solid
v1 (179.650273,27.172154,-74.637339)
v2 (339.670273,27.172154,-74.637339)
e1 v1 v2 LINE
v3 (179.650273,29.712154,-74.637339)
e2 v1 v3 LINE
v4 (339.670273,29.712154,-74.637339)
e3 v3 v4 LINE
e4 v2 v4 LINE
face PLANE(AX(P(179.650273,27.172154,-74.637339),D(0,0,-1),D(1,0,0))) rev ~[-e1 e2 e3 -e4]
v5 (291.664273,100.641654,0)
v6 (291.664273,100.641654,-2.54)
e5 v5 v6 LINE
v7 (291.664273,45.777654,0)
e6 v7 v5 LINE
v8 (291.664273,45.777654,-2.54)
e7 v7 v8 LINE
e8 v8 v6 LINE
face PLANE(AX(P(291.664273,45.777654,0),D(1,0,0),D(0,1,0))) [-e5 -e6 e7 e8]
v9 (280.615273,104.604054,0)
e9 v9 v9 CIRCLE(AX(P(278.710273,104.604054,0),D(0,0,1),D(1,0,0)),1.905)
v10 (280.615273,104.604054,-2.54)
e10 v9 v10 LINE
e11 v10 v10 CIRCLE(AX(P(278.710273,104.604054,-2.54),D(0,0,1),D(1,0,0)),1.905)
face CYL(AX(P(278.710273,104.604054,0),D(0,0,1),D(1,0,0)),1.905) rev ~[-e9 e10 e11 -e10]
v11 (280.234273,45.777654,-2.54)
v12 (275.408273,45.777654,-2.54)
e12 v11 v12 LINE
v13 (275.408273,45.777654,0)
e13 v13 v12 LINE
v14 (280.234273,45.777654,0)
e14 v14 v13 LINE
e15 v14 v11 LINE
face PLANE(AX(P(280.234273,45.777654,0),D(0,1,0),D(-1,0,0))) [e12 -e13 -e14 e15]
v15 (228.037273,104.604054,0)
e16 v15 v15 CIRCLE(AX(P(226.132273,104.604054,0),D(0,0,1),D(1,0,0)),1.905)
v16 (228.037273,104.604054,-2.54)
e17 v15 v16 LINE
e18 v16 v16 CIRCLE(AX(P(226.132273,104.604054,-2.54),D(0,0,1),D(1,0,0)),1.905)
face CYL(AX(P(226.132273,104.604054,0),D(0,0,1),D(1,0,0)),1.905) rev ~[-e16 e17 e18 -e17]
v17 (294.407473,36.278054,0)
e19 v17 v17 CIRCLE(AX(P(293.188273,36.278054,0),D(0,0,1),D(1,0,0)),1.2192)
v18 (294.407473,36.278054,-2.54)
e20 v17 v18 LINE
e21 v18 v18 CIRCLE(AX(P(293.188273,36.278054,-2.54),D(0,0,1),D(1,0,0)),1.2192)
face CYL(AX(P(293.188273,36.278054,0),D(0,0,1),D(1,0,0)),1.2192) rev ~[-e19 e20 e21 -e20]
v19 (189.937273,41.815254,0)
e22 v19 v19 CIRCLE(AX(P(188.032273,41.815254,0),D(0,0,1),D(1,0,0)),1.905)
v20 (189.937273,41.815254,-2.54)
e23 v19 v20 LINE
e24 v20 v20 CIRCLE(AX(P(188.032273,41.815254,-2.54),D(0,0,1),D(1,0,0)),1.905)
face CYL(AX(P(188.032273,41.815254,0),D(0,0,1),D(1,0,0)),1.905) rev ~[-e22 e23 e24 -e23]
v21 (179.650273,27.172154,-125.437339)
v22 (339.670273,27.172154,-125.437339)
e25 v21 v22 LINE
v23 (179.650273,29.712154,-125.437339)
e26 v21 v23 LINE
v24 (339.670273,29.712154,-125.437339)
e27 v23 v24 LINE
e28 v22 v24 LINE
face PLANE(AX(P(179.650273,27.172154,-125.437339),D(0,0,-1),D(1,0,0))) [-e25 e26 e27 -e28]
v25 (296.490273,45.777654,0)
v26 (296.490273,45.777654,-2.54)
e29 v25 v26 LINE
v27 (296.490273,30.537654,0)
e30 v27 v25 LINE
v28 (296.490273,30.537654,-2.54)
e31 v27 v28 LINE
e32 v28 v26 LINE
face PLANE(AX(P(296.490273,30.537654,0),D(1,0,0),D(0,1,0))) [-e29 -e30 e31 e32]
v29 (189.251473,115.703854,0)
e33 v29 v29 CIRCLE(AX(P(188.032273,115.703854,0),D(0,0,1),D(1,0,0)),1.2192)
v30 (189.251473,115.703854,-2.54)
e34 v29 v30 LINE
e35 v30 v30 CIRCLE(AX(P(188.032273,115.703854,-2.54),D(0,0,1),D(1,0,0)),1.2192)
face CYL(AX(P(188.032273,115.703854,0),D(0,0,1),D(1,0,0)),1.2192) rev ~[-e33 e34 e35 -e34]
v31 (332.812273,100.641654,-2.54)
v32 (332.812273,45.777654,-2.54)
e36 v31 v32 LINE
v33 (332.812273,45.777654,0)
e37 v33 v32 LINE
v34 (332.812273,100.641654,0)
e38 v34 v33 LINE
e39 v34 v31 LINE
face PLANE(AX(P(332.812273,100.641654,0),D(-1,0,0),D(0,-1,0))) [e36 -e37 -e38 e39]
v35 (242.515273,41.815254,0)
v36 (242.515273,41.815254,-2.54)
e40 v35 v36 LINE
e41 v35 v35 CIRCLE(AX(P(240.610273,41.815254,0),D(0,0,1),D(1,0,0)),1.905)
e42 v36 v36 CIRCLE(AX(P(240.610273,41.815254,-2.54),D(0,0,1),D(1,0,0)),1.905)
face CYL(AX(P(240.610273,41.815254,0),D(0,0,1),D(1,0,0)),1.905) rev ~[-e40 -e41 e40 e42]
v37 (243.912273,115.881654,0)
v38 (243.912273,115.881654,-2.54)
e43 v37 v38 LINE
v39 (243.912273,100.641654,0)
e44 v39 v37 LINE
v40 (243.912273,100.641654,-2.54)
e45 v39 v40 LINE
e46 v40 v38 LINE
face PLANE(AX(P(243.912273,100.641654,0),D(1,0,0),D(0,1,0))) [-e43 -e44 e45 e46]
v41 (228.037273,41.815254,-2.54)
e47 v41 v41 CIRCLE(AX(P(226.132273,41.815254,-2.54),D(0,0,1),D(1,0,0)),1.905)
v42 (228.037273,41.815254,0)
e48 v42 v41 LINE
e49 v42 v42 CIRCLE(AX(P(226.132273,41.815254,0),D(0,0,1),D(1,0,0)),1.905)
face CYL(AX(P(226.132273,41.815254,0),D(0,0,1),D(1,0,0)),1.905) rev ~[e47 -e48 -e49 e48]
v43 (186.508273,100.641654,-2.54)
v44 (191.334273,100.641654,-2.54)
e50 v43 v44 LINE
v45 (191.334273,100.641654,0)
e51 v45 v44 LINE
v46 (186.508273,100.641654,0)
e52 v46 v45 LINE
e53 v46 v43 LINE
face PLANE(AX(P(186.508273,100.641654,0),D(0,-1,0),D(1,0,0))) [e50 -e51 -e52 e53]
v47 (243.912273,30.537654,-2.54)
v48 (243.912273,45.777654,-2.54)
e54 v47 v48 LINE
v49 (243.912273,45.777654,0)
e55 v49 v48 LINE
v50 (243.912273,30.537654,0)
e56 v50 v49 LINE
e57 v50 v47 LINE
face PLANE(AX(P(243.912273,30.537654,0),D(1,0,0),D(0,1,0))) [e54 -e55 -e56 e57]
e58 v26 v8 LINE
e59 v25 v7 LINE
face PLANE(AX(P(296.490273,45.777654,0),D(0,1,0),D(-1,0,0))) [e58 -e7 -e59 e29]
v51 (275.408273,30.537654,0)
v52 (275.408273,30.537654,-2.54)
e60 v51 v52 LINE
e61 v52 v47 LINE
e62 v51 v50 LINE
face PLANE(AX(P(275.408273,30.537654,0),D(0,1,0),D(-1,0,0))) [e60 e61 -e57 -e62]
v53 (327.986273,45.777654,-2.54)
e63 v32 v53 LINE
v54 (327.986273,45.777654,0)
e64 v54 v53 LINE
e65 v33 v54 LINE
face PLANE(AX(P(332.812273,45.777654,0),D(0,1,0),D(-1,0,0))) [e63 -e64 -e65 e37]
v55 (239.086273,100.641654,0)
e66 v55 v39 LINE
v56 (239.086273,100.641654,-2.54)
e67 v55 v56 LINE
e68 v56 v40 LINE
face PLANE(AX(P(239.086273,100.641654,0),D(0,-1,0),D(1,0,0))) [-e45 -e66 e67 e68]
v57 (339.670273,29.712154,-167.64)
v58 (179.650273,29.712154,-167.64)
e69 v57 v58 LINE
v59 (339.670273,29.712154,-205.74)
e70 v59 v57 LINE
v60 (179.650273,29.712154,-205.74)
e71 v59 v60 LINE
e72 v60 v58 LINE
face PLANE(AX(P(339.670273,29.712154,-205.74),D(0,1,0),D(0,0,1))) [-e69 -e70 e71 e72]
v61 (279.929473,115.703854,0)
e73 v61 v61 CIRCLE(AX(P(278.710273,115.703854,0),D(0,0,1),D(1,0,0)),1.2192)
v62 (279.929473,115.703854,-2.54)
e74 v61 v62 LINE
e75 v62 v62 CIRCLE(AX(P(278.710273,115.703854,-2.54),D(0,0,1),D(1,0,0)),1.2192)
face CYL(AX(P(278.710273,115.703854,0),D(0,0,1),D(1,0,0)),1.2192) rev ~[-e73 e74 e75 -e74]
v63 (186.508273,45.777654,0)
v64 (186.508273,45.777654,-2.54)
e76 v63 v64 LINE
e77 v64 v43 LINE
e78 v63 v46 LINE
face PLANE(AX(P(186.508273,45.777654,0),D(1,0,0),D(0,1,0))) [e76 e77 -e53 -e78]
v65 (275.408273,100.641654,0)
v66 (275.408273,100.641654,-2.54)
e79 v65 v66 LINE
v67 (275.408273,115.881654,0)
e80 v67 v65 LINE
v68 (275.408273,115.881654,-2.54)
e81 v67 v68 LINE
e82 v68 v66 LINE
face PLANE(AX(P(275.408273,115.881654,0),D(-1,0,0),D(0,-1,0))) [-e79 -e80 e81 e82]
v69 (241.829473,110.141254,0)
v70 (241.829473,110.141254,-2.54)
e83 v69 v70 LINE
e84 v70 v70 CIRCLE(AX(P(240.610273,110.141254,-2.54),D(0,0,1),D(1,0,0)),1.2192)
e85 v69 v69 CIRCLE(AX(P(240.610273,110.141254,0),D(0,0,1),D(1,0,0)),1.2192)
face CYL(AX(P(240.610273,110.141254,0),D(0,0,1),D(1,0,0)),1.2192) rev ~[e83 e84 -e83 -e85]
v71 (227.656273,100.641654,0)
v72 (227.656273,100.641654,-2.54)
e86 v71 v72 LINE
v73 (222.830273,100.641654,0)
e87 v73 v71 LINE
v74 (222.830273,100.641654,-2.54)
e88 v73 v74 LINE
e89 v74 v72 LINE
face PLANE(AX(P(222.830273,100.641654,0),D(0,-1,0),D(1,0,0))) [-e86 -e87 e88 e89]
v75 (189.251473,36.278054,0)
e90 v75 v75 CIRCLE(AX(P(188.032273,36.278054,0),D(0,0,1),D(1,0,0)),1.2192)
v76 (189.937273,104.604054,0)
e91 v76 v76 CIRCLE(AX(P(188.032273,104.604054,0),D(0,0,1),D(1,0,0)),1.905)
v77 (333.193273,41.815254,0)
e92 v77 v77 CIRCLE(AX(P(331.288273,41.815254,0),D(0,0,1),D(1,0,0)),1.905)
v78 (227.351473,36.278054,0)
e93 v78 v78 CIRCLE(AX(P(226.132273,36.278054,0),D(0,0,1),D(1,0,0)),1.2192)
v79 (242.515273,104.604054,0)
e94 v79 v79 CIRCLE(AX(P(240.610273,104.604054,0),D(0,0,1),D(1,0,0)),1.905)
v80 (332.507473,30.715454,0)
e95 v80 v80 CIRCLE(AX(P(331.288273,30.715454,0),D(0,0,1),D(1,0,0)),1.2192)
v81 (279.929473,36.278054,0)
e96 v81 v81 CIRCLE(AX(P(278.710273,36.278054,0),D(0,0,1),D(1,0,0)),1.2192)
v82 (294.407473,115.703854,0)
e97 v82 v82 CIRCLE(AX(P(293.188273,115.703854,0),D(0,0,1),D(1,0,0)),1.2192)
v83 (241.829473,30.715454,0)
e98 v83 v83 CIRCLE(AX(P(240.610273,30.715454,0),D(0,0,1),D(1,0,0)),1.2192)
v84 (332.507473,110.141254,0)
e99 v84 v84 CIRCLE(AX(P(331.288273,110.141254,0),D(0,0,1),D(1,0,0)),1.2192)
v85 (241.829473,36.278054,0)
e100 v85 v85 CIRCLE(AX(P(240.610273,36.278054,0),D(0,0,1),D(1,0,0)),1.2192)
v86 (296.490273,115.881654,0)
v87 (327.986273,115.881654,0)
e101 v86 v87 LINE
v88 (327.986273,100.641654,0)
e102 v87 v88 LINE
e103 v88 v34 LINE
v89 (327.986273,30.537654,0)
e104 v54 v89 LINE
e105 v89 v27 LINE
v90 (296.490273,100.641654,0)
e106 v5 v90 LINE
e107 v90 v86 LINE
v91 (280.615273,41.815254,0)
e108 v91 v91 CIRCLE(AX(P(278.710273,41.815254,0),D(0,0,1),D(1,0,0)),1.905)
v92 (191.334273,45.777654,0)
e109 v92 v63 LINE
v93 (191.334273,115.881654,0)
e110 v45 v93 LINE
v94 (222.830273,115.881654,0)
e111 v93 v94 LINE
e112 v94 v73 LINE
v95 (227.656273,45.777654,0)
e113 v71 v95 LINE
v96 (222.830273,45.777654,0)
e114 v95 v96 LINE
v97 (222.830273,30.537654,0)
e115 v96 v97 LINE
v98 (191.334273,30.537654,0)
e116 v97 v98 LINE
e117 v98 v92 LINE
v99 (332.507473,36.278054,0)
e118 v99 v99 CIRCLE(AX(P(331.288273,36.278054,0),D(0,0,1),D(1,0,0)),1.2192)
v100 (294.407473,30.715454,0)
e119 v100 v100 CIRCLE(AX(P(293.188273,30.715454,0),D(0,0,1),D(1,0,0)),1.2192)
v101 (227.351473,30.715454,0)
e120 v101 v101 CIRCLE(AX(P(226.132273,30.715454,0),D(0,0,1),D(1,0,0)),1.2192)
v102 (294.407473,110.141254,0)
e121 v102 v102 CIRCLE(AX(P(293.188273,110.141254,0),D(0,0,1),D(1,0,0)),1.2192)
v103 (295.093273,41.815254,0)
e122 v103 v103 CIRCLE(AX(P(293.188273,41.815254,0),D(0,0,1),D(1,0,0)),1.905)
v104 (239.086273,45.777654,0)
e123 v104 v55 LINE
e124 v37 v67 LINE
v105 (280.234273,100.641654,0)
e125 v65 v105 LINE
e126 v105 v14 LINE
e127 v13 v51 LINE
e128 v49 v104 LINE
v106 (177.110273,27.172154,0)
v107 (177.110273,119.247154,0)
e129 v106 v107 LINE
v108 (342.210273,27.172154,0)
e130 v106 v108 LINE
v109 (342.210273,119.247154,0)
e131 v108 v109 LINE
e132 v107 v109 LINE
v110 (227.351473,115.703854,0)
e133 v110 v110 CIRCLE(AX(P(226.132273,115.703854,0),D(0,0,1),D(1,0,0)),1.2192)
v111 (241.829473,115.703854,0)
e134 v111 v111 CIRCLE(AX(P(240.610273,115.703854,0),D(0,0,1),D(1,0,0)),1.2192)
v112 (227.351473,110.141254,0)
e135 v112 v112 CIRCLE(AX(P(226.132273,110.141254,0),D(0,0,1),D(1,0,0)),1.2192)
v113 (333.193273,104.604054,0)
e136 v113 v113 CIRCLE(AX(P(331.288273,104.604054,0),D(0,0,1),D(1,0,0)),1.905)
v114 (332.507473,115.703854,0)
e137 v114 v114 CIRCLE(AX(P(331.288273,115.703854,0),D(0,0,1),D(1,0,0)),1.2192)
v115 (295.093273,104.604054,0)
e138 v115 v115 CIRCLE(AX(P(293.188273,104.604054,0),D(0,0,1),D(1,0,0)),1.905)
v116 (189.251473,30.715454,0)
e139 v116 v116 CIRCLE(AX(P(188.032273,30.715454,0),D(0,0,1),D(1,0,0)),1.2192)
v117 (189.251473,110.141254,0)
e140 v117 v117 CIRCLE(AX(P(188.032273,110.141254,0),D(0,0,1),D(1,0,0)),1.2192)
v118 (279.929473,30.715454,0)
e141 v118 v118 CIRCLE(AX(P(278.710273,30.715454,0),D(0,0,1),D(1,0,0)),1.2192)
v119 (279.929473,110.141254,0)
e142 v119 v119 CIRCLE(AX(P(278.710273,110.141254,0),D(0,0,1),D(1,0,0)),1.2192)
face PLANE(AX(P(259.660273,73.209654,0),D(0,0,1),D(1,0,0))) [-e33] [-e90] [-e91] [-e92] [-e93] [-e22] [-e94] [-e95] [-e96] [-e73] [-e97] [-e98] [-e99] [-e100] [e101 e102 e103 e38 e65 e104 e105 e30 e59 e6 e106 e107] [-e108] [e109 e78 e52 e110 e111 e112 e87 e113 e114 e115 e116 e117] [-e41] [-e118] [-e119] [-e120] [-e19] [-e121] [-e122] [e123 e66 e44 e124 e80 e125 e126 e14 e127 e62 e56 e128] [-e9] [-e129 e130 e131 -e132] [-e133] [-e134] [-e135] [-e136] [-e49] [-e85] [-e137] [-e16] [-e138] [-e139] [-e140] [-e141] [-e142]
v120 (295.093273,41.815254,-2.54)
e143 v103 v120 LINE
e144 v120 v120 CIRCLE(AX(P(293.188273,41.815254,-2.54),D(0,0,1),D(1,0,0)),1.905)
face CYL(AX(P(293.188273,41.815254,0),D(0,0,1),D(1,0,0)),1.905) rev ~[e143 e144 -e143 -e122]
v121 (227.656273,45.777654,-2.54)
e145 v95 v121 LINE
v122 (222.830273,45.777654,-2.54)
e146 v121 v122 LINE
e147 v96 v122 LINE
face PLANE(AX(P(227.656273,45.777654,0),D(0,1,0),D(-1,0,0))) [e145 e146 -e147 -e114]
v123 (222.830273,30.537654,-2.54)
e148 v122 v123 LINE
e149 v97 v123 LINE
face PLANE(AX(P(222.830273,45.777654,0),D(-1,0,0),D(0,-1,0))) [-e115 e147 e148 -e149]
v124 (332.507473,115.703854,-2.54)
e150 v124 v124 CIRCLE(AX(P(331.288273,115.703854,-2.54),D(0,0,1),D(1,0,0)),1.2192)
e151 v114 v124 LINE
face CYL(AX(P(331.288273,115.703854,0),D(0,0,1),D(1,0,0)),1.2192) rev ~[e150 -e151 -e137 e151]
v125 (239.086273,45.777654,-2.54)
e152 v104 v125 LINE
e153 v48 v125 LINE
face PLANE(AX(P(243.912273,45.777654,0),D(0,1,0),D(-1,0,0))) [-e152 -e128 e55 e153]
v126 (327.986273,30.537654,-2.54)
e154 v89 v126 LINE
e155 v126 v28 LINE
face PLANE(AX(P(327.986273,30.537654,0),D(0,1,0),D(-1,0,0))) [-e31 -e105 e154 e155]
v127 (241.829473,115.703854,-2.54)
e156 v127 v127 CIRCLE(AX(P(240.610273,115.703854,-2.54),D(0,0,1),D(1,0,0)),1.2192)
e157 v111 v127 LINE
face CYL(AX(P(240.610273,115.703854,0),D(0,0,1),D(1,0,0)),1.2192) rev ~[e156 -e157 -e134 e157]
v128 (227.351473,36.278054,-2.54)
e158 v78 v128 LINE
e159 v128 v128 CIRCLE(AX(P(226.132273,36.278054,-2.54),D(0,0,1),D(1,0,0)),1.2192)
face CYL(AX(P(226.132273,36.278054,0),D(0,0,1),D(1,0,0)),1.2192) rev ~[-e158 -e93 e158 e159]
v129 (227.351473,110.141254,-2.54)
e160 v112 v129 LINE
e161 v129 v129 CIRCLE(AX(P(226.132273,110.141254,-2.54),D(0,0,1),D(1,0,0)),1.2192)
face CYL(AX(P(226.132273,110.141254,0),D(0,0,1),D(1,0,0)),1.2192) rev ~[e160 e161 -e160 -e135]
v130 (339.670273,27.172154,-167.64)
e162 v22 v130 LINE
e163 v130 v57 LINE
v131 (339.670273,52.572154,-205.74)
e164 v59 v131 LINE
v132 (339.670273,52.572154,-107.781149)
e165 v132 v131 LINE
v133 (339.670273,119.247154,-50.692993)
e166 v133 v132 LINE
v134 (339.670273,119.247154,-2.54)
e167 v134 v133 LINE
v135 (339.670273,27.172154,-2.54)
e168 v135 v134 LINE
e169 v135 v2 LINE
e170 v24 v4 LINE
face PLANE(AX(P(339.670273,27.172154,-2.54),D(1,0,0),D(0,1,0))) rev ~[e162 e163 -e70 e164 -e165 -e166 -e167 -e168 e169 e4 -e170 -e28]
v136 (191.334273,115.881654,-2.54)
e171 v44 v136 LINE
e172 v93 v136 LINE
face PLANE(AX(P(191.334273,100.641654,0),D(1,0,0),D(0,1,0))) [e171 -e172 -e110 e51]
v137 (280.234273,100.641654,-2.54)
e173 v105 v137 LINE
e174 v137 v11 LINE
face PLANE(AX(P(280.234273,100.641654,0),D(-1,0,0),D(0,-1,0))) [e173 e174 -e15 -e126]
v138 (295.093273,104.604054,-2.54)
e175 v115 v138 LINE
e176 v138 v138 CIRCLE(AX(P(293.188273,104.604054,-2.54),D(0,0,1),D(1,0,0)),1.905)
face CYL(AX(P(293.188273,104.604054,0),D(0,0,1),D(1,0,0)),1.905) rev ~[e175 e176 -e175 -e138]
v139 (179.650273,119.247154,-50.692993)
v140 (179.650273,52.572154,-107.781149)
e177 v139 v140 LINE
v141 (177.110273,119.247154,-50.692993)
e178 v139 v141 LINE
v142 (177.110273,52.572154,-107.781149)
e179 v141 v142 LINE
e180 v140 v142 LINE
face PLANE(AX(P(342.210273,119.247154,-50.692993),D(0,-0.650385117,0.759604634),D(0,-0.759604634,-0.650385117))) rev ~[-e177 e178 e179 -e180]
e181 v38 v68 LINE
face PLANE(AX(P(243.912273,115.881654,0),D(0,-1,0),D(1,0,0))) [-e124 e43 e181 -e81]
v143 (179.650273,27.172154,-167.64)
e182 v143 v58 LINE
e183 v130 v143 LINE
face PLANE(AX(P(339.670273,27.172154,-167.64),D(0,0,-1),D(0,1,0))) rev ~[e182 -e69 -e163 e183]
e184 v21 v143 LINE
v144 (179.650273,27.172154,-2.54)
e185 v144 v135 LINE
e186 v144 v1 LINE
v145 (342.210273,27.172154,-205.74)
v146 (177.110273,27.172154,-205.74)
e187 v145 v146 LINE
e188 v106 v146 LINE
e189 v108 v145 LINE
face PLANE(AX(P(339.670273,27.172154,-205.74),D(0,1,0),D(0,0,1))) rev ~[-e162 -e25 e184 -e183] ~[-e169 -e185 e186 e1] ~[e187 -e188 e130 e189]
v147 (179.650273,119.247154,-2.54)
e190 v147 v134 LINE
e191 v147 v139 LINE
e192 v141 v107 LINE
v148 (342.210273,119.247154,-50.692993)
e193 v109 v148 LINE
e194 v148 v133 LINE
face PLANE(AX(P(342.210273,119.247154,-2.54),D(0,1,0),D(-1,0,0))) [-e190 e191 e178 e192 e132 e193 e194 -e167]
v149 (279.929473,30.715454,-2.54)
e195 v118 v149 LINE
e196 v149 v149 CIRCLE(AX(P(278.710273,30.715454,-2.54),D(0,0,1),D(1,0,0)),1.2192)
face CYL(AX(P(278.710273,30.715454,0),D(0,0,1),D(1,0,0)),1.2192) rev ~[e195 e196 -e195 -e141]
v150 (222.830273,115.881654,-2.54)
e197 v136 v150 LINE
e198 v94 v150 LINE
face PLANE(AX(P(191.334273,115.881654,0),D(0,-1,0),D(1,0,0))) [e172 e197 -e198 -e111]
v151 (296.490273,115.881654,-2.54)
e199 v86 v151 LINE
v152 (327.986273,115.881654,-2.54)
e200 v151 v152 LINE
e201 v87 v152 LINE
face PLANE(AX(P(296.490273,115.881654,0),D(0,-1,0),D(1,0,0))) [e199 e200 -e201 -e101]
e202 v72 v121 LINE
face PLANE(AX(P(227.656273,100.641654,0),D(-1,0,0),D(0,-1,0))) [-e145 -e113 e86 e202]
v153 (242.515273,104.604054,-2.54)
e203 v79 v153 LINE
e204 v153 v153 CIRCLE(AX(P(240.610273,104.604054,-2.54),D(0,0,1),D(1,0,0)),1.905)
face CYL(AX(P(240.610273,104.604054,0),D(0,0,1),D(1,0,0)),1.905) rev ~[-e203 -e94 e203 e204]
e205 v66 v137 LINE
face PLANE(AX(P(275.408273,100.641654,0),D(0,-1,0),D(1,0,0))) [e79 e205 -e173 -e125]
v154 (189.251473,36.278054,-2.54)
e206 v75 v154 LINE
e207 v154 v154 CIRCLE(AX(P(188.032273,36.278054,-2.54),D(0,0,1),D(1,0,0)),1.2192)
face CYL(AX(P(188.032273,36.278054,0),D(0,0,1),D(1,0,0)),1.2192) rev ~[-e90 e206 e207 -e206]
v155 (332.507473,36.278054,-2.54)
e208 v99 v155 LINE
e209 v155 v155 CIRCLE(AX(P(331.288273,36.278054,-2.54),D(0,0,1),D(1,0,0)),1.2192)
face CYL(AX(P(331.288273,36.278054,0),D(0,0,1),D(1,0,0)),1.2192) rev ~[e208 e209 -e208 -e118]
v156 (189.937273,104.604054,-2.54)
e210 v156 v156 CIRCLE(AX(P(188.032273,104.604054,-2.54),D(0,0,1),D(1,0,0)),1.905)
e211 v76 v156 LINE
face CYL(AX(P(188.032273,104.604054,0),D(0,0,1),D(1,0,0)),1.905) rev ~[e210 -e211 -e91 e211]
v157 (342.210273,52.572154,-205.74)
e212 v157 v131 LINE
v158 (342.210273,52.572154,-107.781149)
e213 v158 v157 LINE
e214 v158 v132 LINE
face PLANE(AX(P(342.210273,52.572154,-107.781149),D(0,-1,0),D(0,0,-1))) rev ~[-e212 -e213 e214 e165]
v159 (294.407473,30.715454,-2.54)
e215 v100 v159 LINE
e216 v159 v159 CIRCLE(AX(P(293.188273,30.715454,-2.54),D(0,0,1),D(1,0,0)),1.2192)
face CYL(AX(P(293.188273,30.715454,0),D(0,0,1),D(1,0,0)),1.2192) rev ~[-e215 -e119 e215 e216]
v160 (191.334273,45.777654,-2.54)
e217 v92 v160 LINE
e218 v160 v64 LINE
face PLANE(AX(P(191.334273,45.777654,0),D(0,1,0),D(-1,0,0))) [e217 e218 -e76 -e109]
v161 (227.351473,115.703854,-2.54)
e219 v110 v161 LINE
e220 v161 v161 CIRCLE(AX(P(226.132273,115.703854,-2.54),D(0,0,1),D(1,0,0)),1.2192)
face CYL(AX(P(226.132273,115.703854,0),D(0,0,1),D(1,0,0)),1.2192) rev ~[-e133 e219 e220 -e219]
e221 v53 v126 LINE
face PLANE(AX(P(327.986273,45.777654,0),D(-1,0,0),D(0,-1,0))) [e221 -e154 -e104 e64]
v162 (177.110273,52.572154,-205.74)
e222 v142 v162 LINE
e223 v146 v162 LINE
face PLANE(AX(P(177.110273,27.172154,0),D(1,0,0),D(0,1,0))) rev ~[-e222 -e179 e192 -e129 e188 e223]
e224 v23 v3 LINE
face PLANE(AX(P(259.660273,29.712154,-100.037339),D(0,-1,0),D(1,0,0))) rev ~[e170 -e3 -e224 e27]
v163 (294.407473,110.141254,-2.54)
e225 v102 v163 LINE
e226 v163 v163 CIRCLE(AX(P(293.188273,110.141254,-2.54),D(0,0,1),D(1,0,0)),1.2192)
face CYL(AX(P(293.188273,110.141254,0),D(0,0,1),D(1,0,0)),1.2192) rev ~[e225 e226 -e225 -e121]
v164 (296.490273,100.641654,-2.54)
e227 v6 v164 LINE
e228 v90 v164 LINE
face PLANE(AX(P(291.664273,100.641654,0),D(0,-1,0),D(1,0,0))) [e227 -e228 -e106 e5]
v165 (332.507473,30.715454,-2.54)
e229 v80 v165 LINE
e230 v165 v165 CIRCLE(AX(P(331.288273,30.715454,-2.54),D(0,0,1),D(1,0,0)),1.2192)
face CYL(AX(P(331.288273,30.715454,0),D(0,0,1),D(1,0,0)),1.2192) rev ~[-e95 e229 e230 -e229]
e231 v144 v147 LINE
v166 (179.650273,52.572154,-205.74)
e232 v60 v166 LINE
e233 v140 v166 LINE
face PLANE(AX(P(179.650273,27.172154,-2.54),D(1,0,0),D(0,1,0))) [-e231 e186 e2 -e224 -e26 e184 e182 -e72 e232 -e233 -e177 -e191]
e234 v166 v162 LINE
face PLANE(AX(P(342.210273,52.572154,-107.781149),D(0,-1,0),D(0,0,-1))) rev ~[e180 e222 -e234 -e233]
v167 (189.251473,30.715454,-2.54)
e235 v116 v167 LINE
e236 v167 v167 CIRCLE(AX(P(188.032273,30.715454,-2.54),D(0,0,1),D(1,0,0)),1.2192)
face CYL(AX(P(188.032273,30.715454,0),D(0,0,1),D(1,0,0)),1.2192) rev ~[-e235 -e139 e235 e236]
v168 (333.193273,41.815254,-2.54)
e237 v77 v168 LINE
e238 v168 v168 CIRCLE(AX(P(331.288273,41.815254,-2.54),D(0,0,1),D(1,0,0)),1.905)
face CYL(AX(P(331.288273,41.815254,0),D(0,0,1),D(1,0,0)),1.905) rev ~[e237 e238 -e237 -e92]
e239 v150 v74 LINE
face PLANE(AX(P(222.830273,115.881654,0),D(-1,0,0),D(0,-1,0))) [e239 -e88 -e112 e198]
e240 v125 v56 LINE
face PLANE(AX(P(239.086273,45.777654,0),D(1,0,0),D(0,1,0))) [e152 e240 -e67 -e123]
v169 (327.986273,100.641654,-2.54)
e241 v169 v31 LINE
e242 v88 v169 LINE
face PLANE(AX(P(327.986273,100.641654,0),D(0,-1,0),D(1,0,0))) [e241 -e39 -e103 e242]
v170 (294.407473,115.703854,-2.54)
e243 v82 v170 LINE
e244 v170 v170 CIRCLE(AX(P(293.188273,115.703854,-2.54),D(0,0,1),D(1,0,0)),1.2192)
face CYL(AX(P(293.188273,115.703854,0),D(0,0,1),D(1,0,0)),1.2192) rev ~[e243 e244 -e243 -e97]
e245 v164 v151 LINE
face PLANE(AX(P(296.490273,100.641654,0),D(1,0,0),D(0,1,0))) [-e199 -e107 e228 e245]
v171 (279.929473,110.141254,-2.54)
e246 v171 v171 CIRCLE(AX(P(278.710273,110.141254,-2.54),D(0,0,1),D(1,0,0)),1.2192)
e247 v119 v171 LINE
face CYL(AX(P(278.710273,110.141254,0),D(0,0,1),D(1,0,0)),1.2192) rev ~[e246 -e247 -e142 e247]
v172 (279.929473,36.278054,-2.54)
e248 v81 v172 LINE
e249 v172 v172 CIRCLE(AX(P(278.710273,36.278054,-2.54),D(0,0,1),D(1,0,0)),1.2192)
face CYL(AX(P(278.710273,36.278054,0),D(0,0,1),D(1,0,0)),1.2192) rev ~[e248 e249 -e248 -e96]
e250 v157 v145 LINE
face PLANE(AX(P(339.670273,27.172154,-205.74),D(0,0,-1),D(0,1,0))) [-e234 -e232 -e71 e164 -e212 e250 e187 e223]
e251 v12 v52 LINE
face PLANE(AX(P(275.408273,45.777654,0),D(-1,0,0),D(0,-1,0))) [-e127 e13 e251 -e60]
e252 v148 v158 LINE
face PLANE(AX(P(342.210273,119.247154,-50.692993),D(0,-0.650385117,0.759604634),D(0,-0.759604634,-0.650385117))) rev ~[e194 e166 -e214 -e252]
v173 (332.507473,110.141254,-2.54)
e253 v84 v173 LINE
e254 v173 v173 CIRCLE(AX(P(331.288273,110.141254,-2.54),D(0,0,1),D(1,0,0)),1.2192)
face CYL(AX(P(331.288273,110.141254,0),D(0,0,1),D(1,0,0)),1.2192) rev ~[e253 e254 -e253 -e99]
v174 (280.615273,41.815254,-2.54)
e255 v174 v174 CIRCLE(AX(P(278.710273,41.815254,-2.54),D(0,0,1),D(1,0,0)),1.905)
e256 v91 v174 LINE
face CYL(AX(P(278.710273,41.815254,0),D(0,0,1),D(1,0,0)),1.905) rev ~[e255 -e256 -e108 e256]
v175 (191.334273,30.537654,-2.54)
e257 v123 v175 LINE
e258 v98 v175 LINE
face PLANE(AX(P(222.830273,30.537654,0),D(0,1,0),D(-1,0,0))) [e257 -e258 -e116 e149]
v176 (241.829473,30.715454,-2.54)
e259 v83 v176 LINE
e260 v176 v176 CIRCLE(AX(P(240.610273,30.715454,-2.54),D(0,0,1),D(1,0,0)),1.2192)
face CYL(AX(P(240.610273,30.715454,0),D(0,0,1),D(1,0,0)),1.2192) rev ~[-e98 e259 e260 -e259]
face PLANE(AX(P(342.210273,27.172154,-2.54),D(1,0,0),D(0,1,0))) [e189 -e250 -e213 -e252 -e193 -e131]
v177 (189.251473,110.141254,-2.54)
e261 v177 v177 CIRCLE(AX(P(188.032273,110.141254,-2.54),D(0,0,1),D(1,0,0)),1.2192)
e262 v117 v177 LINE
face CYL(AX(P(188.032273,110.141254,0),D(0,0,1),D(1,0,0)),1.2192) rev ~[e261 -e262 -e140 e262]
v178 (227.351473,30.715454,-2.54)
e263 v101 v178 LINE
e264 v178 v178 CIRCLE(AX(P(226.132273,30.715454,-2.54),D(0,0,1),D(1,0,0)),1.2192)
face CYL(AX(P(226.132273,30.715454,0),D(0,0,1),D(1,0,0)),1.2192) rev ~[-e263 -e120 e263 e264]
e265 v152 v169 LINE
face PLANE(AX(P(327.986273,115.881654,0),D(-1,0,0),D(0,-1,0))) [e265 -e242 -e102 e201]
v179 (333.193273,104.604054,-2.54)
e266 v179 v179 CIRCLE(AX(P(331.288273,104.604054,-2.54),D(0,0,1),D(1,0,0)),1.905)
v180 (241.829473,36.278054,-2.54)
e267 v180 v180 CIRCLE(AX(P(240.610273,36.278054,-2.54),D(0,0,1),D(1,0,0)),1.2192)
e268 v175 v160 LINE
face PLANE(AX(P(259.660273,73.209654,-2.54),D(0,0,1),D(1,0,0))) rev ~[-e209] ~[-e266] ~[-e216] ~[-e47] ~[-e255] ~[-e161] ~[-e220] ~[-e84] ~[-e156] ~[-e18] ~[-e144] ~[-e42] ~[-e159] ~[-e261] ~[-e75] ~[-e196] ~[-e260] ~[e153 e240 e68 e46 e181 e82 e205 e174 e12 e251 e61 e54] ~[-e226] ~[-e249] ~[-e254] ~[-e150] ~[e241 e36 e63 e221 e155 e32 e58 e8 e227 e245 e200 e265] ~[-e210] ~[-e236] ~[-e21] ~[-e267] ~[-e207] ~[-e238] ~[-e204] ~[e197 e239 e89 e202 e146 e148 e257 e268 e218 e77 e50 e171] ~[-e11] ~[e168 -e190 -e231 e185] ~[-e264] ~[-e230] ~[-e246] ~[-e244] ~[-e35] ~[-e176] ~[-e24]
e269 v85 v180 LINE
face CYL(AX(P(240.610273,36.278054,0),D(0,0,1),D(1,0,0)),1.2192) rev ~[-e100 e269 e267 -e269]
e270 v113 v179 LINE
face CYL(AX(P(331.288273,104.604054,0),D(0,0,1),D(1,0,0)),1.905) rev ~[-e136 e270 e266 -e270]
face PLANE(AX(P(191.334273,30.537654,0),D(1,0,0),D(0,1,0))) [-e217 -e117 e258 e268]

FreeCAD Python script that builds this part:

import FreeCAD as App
import Part
import Sketcher
Q = App.Units.Quantity

doc = App.newDocument("Part")
body = doc.addObject("PartDesign::Body", "Body")

# Sketch on XY plane
sketch1 = body.newObject("Sketcher::SketchObject", "Sketch")
sketch1.AttachmentSupport = (doc.getObject("XY_Plane"), [""])
sketch1.MapMode = "FlatFace"
sketch1.addGeometry([
    Part.LineSegment(App.Vector(177, 119, 0), App.Vector(177, 27, 0)),
    Part.LineSegment(App.Vector(177, 27, 0), App.Vector(342, 27, 0)),
    Part.LineSegment(App.Vector(342, 27, 0), App.Vector(342, 119, 0)),
    Part.LineSegment(App.Vector(342, 119, 0), App.Vector(177, 119, 0)),
], False)
sketch1.addConstraint([
    Sketcher.Constraint("Coincident", 0, 2, 1, 1),
    Sketcher.Constraint("Coincident", 1, 2, 2, 1),
    Sketcher.Constraint("Coincident", 2, 2, 3, 1),
    Sketcher.Constraint("Coincident", 3, 2, 0, 1),
    Sketcher.Constraint("Vertical", 0),
    Sketcher.Constraint("Horizontal", 1),
    Sketcher.Constraint("Vertical", 2),
    Sketcher.Constraint("Horizontal", 3),
    Sketcher.Constraint("DistanceX", 1, 1, 1, 2, Q("6.5 in")),
    Sketcher.Constraint("DistanceY", 0, 2, 0, 1, Q("3.625 in")),
    Sketcher.Constraint("DistanceX", -1, 1, 0, 2, 177.110273),
    Sketcher.Constraint("DistanceY", -1, 1, 0, 2, 27.172154),
])
pad1 = body.newObject("PartDesign::Pad", "Pad")
pad1.Profile = sketch1
pad1.Length = Q("0.1 in")
pad1.Reversed = True

# Sketch on XY plane
sketch2 = body.newObject("Sketcher::SketchObject", "Sketch001")
sketch2.AttachmentSupport = (doc.getObject("XY_Plane"), [""])
sketch2.MapMode = "FlatFace"
sketch2.addGeometry([
    Part.Circle(App.Vector(188, 41.8, 0), App.Vector(0, 0, 1), 1.9),  # 0
    Part.Circle(App.Vector(226.1, 104.6, 0), App.Vector(0, 0, 1), 1.9),  # 1
    Part.Circle(App.Vector(188, 104.6, 0), App.Vector(0, 0, 1), 1.9),  # 2
    Part.Circle(App.Vector(188, 36.3, 0), App.Vector(0, 0, 1), 1.2),  # 3
    Part.Circle(App.Vector(188, 30.7, 0), App.Vector(0, 0, 1), 1.2),  # 4
    Part.Circle(App.Vector(226.1, 41.8, 0), App.Vector(0, 0, 1), 1.9),  # 5
    Part.Circle(App.Vector(226.1, 36.3, 0), App.Vector(0, 0, 1), 1.2),  # 6
    Part.Circle(App.Vector(226.1, 30.7, 0), App.Vector(0, 0, 1), 1.2),  # 7
    Part.Circle(App.Vector(226.1, 110.1, 0), App.Vector(0, 0, 1), 1.2),  # 8
    Part.Circle(App.Vector(226.1, 115.7, 0), App.Vector(0, 0, 1), 1.2),  # 9
    Part.Circle(App.Vector(188, 110.1, 0), App.Vector(0, 0, 1), 1.2),  # 10
    Part.Circle(App.Vector(188, 115.7, 0), App.Vector(0, 0, 1), 1.2),  # 11
    Part.Circle(App.Vector(240.6, 41.8, 0), App.Vector(0, 0, 1), 1.9),  # 12
    Part.Circle(App.Vector(278.7, 104.6, 0), App.Vector(0, 0, 1), 1.9),  # 13
    Part.Circle(App.Vector(240.6, 104.6, 0), App.Vector(0, 0, 1), 1.9),  # 14
    Part.Circle(App.Vector(240.6, 36.3, 0), App.Vector(0, 0, 1), 1.2),  # 15
    Part.Circle(App.Vector(240.6, 30.7, 0), App.Vector(0, 0, 1), 1.2),  # 16
    Part.Circle(App.Vector(278.7, 41.8, 0), App.Vector(0, 0, 1), 1.9),  # 17
    Part.Circle(App.Vector(278.7, 36.3, 0), App.Vector(0, 0, 1), 1.2),  # 18
    Part.Circle(App.Vector(278.7, 30.7, 0), App.Vector(0, 0, 1), 1.2),  # 19
    Part.Circle(App.Vector(278.7, 110.1, 0), App.Vector(0, 0, 1), 1.2),  # 20
    Part.Circle(App.Vector(278.7, 115.7, 0), App.Vector(0, 0, 1), 1.2),  # 21
    Part.Circle(App.Vector(240.6, 110.1, 0), App.Vector(0, 0, 1), 1.2),  # 22
    Part.Circle(App.Vector(240.6, 115.7, 0), App.Vector(0, 0, 1), 1.2),  # 23
    Part.Circle(App.Vector(293.2, 41.8, 0), App.Vector(0, 0, 1), 1.9),  # 24
    Part.Circle(App.Vector(331.3, 104.6, 0), App.Vector(0, 0, 1), 1.9),  # 25
    Part.Circle(App.Vector(293.2, 104.6, 0), App.Vector(0, 0, 1), 1.9),  # 26
    Part.Circle(App.Vector(293.2, 36.3, 0), App.Vector(0, 0, 1), 1.2),  # 27
    Part.Circle(App.Vector(293.2, 30.7, 0), App.Vector(0, 0, 1), 1.2),  # 28
    Part.Circle(App.Vector(331.3, 41.8, 0), App.Vector(0, 0, 1), 1.9),  # 29
    Part.Circle(App.Vector(331.3, 36.3, 0), App.Vector(0, 0, 1), 1.2),  # 30
    Part.Circle(App.Vector(331.3, 30.7, 0), App.Vector(0, 0, 1), 1.2),  # 31
    Part.Circle(App.Vector(331.3, 110.1, 0), App.Vector(0, 0, 1), 1.2),  # 32
    Part.Circle(App.Vector(331.3, 115.7, 0), App.Vector(0, 0, 1), 1.2),  # 33
    Part.Circle(App.Vector(293.2, 110.1, 0), App.Vector(0, 0, 1), 1.2),  # 34
    Part.Circle(App.Vector(293.2, 115.7, 0), App.Vector(0, 0, 1), 1.2),  # 35
    Part.LineSegment(App.Vector(222.8, 115.9, 0), App.Vector(191.3, 115.9, 0)),  # 36
    Part.LineSegment(App.Vector(191.3, 115.9, 0), App.Vector(191.3, 100.6, 0)),  # 37
    Part.LineSegment(App.Vector(191.3, 100.6, 0), App.Vector(186.5, 100.6, 0)),  # 38
    Part.LineSegment(App.Vector(186.5, 100.6, 0), App.Vector(186.5, 45.8, 0)),  # 39
    Part.LineSegment(App.Vector(186.5, 45.8, 0), App.Vector(191.3, 45.8, 0)),  # 40
    Part.LineSegment(App.Vector(191.3, 45.8, 0), App.Vector(191.3, 30.5, 0)),  # 41
    Part.LineSegment(App.Vector(191.3, 30.5, 0), App.Vector(222.8, 30.5, 0)),  # 42
    Part.LineSegment(App.Vector(222.8, 30.5, 0), App.Vector(222.8, 45.8, 0)),  # 43
    Part.LineSegment(App.Vector(222.8, 45.8, 0), App.Vector(227.7, 45.8, 0)),  # 44
    Part.LineSegment(App.Vector(227.7, 45.8, 0), App.Vector(227.7, 100.6, 0)),  # 45
    Part.LineSegment(App.Vector(227.7, 100.6, 0), App.Vector(222.8, 100.6, 0)),  # 46
    Part.LineSegment(App.Vector(222.8, 100.6, 0), App.Vector(222.8, 115.9, 0)),  # 47
    Part.LineSegment(App.Vector(275.4, 115.9, 0), App.Vector(243.9, 115.9, 0)),  # 48
    Part.LineSegment(App.Vector(243.9, 115.9, 0), App.Vector(243.9, 100.6, 0)),  # 49
    Part.LineSegment(App.Vector(243.9, 100.6, 0), App.Vector(239.1, 100.6, 0)),  # 50
    Part.LineSegment(App.Vector(239.1, 100.6, 0), App.Vector(239.1, 45.8, 0)),  # 51
    Part.LineSegment(App.Vector(239.1, 45.8, 0), App.Vector(243.9, 45.8, 0)),  # 52
    Part.LineSegment(App.Vector(243.9, 45.8, 0), App.Vector(243.9, 30.5, 0)),  # 53
    Part.LineSegment(App.Vector(243.9, 30.5, 0), App.Vector(275.4, 30.5, 0)),  # 54
    Part.LineSegment(App.Vector(275.4, 30.5, 0), App.Vector(275.4, 45.8, 0)),  # 55
    Part.LineSegment(App.Vector(275.4, 45.8, 0), App.Vector(280.2, 45.8, 0)),  # 56
    Part.LineSegment(App.Vector(280.2, 45.8, 0), App.Vector(280.2, 100.6, 0)),  # 57
    Part.LineSegment(App.Vector(280.2, 100.6, 0), App.Vector(275.4, 100.6, 0)),  # 58
    Part.LineSegment(App.Vector(275.4, 100.6, 0), App.Vector(275.4, 115.9, 0)),  # 59
    Part.LineSegment(App.Vector(328, 115.9, 0), App.Vector(296.5, 115.9, 0)),  # 60
    Part.LineSegment(App.Vector(296.5, 115.9, 0), App.Vector(296.5, 100.6, 0)),  # 61
    Part.LineSegment(App.Vector(296.5, 100.6, 0), App.Vector(291.7, 100.6, 0)),  # 62
    Part.LineSegment(App.Vector(291.7, 100.6, 0), App.Vector(291.7, 45.8, 0)),  # 63
    Part.LineSegment(App.Vector(291.7, 45.8, 0), App.Vector(296.5, 45.8, 0)),  # 64
    Part.LineSegment(App.Vector(296.5, 45.8, 0), App.Vector(296.5, 30.5, 0)),  # 65
    Part.LineSegment(App.Vector(296.5, 30.5, 0), App.Vector(328, 30.5, 0)),  # 66
    Part.LineSegment(App.Vector(328, 30.5, 0), App.Vector(328, 45.8, 0)),  # 67
    Part.LineSegment(App.Vector(328, 45.8, 0), App.Vector(332.8, 45.8, 0)),  # 68
    Part.LineSegment(App.Vector(332.8, 45.8, 0), App.Vector(332.8, 100.6, 0)),  # 69
    Part.LineSegment(App.Vector(332.8, 100.6, 0), App.Vector(328, 100.6, 0)),  # 70
    Part.LineSegment(App.Vector(328, 100.6, 0), App.Vector(328, 115.9, 0)),  # 71
], False)
sketch2.addConstraint([
    Sketcher.Constraint("Coincident", 36, 2, 37, 1),
    Sketcher.Constraint("Coincident", 37, 2, 38, 1),
    Sketcher.Constraint("Coincident", 38, 2, 39, 1),
    Sketcher.Constraint("Coincident", 39, 2, 40, 1),
    Sketcher.Constraint("Coincident", 40, 2, 41, 1),
    Sketcher.Constraint("Coincident", 41, 2, 42, 1),
    Sketcher.Constraint("Coincident", 42, 2, 43, 1),
    Sketcher.Constraint("Coincident", 43, 2, 44, 1),
    Sketcher.Constraint("Coincident", 44, 2, 45, 1),
    Sketcher.Constraint("Coincident", 45, 2, 46, 1),
    Sketcher.Constraint("Coincident", 46, 2, 47, 1),
    Sketcher.Constraint("Coincident", 47, 2, 36, 1),
    Sketcher.Constraint("Coincident", 48, 2, 49, 1),
    Sketcher.Constraint("Coincident", 49, 2, 50, 1),
    Sketcher.Constraint("Coincident", 50, 2, 51, 1),
    Sketcher.Constraint("Coincident", 51, 2, 52, 1),
    Sketcher.Constraint("Coincident", 52, 2, 53, 1),
    Sketcher.Constraint("Coincident", 53, 2, 54, 1),
    Sketcher.Constraint("Coincident", 54, 2, 55, 1),
    Sketcher.Constraint("Coincident", 55, 2, 56, 1),
    Sketcher.Constraint("Coincident", 56, 2, 57, 1),
    Sketcher.Constraint("Coincident", 57, 2, 58, 1),
    Sketcher.Constraint("Coincident", 58, 2, 59, 1),
    Sketcher.Constraint("Coincident", 59, 2, 48, 1),
    Sketcher.Constraint("Coincident", 60, 2, 61, 1),
    Sketcher.Constraint("Coincident", 61, 2, 62, 1),
    Sketcher.Constraint("Coincident", 62, 2, 63, 1),
    Sketcher.Constraint("Coincident", 63, 2, 64, 1),
    Sketcher.Constraint("Coincident", 64, 2, 65, 1),
    Sketcher.Constraint("Coincident", 65, 2, 66, 1),
    Sketcher.Constraint("Coincident", 66, 2, 67, 1),
    Sketcher.Constraint("Coincident", 67, 2, 68, 1),
    Sketcher.Constraint("Coincident", 68, 2, 69, 1),
    Sketcher.Constraint("Coincident", 69, 2, 70, 1),
    Sketcher.Constraint("Coincident", 70, 2, 71, 1),
    Sketcher.Constraint("Coincident", 71, 2, 60, 1),
    Sketcher.Constraint("Horizontal", 36),
    Sketcher.Constraint("Vertical", 37),
    Sketcher.Constraint("Horizontal", 38),
    Sketcher.Constraint("Vertical", 39),
    Sketcher.Constraint("Horizontal", 40),
    Sketcher.Constraint("Vertical", 41),
    Sketcher.Constraint("Horizontal", 42),
    Sketcher.Constraint("Vertical", 43),
    Sketcher.Constraint("Horizontal", 44),
    Sketcher.Constraint("Vertical", 45),
    Sketcher.Constraint("Horizontal", 46),
    Sketcher.Constraint("Vertical", 47),
    Sketcher.Constraint("Horizontal", 48),
    Sketcher.Constraint("Vertical", 49),
    Sketcher.Constraint("Horizontal", 50),
    Sketcher.Constraint("Vertical", 51),
    Sketcher.Constraint("Horizontal", 52),
    Sketcher.Constraint("Vertical", 53),
    Sketcher.Constraint("Horizontal", 54),
    Sketcher.Constraint("Vertical", 55),
    Sketcher.Constraint("Horizontal", 56),
    Sketcher.Constraint("Vertical", 57),
    Sketcher.Constraint("Horizontal", 58),
    Sketcher.Constraint("Vertical", 59),
    Sketcher.Constraint("Horizontal", 60),
    Sketcher.Constraint("Vertical", 61),
    Sketcher.Constraint("Horizontal", 62),
    Sketcher.Constraint("Vertical", 63),
    Sketcher.Constraint("Horizontal", 64),
    Sketcher.Constraint("Vertical", 65),
    Sketcher.Constraint("Horizontal", 66),
    Sketcher.Constraint("Vertical", 67),
    Sketcher.Constraint("Horizontal", 68),
    Sketcher.Constraint("Vertical", 69),
    Sketcher.Constraint("Horizontal", 70),
    Sketcher.Constraint("Vertical", 71),
    Sketcher.Constraint("Equal", 0, 1),
    Sketcher.Constraint("Equal", 1, 2),
    Sketcher.Constraint("Equal", 3, 4),
    Sketcher.Constraint("Equal", 2, 5),
    Sketcher.Constraint("Equal", 4, 6),
    Sketcher.Constraint("Equal", 6, 7),
    Sketcher.Constraint("Equal", 7, 8),
    Sketcher.Constraint("Equal", 8, 9),
    Sketcher.Constraint("Equal", 9, 10),
    Sketcher.Constraint("Equal", 10, 11),
    Sketcher.Constraint("Equal", 5, 12),
    Sketcher.Constraint("Equal", 12, 13),
    Sketcher.Constraint("Equal", 13, 14),
    Sketcher.Constraint("Equal", 11, 15),
    Sketcher.Constraint("Equal", 15, 16),
    Sketcher.Constraint("Equal", 14, 17),
    Sketcher.Constraint("Equal", 16, 18),
    Sketcher.Constraint("Equal", 18, 19),
    Sketcher.Constraint("Equal", 19, 20),
    Sketcher.Constraint("Equal", 20, 21),
    Sketcher.Constraint("Equal", 21, 22),
    Sketcher.Constraint("Equal", 22, 23),
    Sketcher.Constraint("Equal", 17, 24),
    Sketcher.Constraint("Equal", 24, 25),
    Sketcher.Constraint("Equal", 25, 26),
    Sketcher.Constraint("Equal", 23, 27),
    Sketcher.Constraint("Equal", 27, 28),
    Sketcher.Constraint("Equal", 26, 29),
    Sketcher.Constraint("Equal", 28, 30),
    Sketcher.Constraint("Equal", 30, 31),
    Sketcher.Constraint("Equal", 31, 32),
    Sketcher.Constraint("Equal", 32, 33),
    Sketcher.Constraint("Equal", 33, 34),
    Sketcher.Constraint("Equal", 34, 35),
    Sketcher.Constraint("Horizontal", 1, 3, 2, 3),
    Sketcher.Constraint("Horizontal", 0, 3, 5, 3),
    Sketcher.Constraint("Horizontal", 3, 3, 6, 3),
    Sketcher.Constraint("Horizontal", 4, 3, 7, 3),
    Sketcher.Constraint("Horizontal", 8, 3, 10, 3),
    Sketcher.Constraint("Horizontal", 9, 3, 11, 3),
    Sketcher.Constraint("Horizontal", 5, 3, 12, 3),
    Sketcher.Constraint("Horizontal", 2, 3, 13, 3),
    Sketcher.Constraint("Horizontal", 13, 3, 14, 3),
    Sketcher.Constraint("Horizontal", 6, 3, 15, 3),
    Sketcher.Constraint("Horizontal", 7, 3, 16, 3),
    Sketcher.Constraint("Horizontal", 12, 3, 17, 3),
    Sketcher.Constraint("Horizontal", 15, 3, 18, 3),
    Sketcher.Constraint("Horizontal", 16, 3, 19, 3),
    Sketcher.Constraint("Horizontal", 10, 3, 20, 3),
    Sketcher.Constraint("Horizontal", 11, 3, 21, 3),
    Sketcher.Constraint("Horizontal", 20, 3, 22, 3),
    Sketcher.Constraint("Horizontal", 21, 3, 23, 3),
    Sketcher.Constraint("Horizontal", 17, 3, 24, 3),
    Sketcher.Constraint("Horizontal", 14, 3, 25, 3),
    Sketcher.Constraint("Horizontal", 25, 3, 26, 3),
    Sketcher.Constraint("Horizontal", 18, 3, 27, 3),
    Sketcher.Constraint("Horizontal", 19, 3, 28, 3),
    Sketcher.Constraint("Horizontal", 24, 3, 29, 3),
    Sketcher.Constraint("Horizontal", 27, 3, 30, 3),
    Sketcher.Constraint("Horizontal", 28, 3, 31, 3),
    Sketcher.Constraint("Horizontal", 22, 3, 32, 3),
    Sketcher.Constraint("Horizontal", 23, 3, 33, 3),
    Sketcher.Constraint("Horizontal", 32, 3, 34, 3),
    Sketcher.Constraint("Horizontal", 33, 3, 35, 3),
    Sketcher.Constraint("Horizontal", 40, 2, 43, 2),
    Sketcher.Constraint("Horizontal", 38, 2, 45, 2),
    Sketcher.Constraint("Horizontal", 47, 2, 48, 2),
    Sketcher.Constraint("Horizontal", 46, 2, 49, 2),
    Sketcher.Constraint("Horizontal", 44, 2, 51, 2),
    Sketcher.Constraint("Horizontal", 42, 2, 53, 2),
    Sketcher.Constraint("Horizontal", 52, 2, 55, 2),
    Sketcher.Constraint("Horizontal", 50, 2, 57, 2),
    Sketcher.Constraint("Horizontal", 59, 2, 60, 2),
    Sketcher.Constraint("Horizontal", 58, 2, 61, 2),
    Sketcher.Constraint("Horizontal", 56, 2, 63, 2),
    Sketcher.Constraint("Horizontal", 54, 2, 65, 2),
    Sketcher.Constraint("Horizontal", 64, 2, 67, 2),
    Sketcher.Constraint("Horizontal", 62, 2, 69, 2),
    Sketcher.Constraint("Vertical", 0, 3, 2, 3),
    Sketcher.Constraint("Vertical", 2, 3, 3, 3),
    Sketcher.Constraint("Vertical", 3, 3, 4, 3),
    Sketcher.Constraint("Vertical", 1, 3, 5, 3),
    Sketcher.Constraint("Vertical", 5, 3, 6, 3),
    Sketcher.Constraint("Vertical", 6, 3, 7, 3),
    Sketcher.Constraint("Vertical", 7, 3, 8, 3),
    Sketcher.Constraint("Vertical", 8, 3, 9, 3),
    Sketcher.Constraint("Vertical", 4, 3, 10, 3),
    Sketcher.Constraint("Vertical", 10, 3, 11, 3),
    Sketcher.Constraint("Vertical", 12, 3, 14, 3),
    Sketcher.Constraint("Vertical", 14, 3, 15, 3),
    Sketcher.Constraint("Vertical", 15, 3, 16, 3),
    Sketcher.Constraint("Vertical", 13, 3, 17, 3),
    Sketcher.Constraint("Vertical", 17, 3, 18, 3),
    Sketcher.Constraint("Vertical", 18, 3, 19, 3),
    Sketcher.Constraint("Vertical", 19, 3, 20, 3),
    Sketcher.Constraint("Vertical", 20, 3, 21, 3),
    Sketcher.Constraint("Vertical", 16, 3, 22, 3),
    Sketcher.Constraint("Vertical", 22, 3, 23, 3),
    Sketcher.Constraint("Vertical", 24, 3, 26, 3),
    Sketcher.Constraint("Vertical", 26, 3, 27, 3),
    Sketcher.Constraint("Vertical", 27, 3, 28, 3),
    Sketcher.Constraint("Vertical", 25, 3, 29, 3),
    Sketcher.Constraint("Vertical", 29, 3, 30, 3),
    Sketcher.Constraint("Vertical", 30, 3, 31, 3),
    Sketcher.Constraint("Vertical", 31, 3, 32, 3),
    Sketcher.Constraint("Vertical", 32, 3, 33, 3),
    Sketcher.Constraint("Vertical", 28, 3, 34, 3),
    Sketcher.Constraint("Vertical", 34, 3, 35, 3),
    Sketcher.Constraint("Vertical", 37, 2, 40, 2),
    Sketcher.Constraint("Vertical", 43, 2, 46, 2),
    Sketcher.Constraint("Vertical", 49, 2, 52, 2),
    Sketcher.Constraint("Vertical", 55, 2, 58, 2),
    Sketcher.Constraint("Vertical", 61, 2, 64, 2),
    Sketcher.Constraint("Vertical", 67, 2, 70, 2),
    Sketcher.Constraint("Equal", 40, 44),
    Sketcher.Constraint("Equal", 42, 48),
    Sketcher.Constraint("Equal", 46, 50),
    Sketcher.Constraint("Equal", 52, 56),
    Sketcher.Constraint("Equal", 54, 60),
    Sketcher.Constraint("Equal", 58, 62),
    Sketcher.Constraint("Equal", 64, 68),
    Sketcher.Constraint("Equal", 37, 41),
    Sketcher.Constraint("Diameter", 0, Q("0.15 in")),
    Sketcher.Constraint("Diameter", 3, Q("0.096 in")),
    Sketcher.Constraint("DistanceY", 37, 2, 37, 1, Q("0.6 in")),
    Sketcher.Constraint("DistanceX", 36, 2, 36, 1, Q("1.24 in")),
    Sketcher.Constraint("DistanceX", 38, 2, 38, 1, Q("0.19 in")),
    Sketcher.Constraint("DistanceY", 39, 2, 39, 1, Q("2.16 in")),
    Sketcher.Constraint("DistanceX", -1, 1, 0, 3, 188.032273),
    Sketcher.Constraint("DistanceY", -1, 1, 0, 3, 41.815254),
    Sketcher.Constraint("DistanceX", -1, 1, 1, 3, 226.132273),
    Sketcher.Constraint("DistanceY", -1, 1, 1, 3, 104.604054),
    Sketcher.Constraint("DistanceY", -1, 1, 3, 3, 36.278054),
    Sketcher.Constraint("DistanceY", -1, 1, 4, 3, 30.715454),
    Sketcher.Constraint("DistanceY", -1, 1, 8, 3, 110.141254),
    Sketcher.Constraint("DistanceY", -1, 1, 9, 3, 115.703854),
    Sketcher.Constraint("DistanceX", -1, 1, 12, 3, 240.610273),
    Sketcher.Constraint("DistanceX", -1, 1, 13, 3, 278.710273),
    Sketcher.Constraint("DistanceX", -1, 1, 24, 3, 293.188273),
    Sketcher.Constraint("DistanceX", -1, 1, 25, 3, 331.288273),
    Sketcher.Constraint("DistanceX", -1, 1, 36, 2, 191.334273),
    Sketcher.Constraint("DistanceY", -1, 1, 36, 2, 115.881654),
    Sketcher.Constraint("DistanceX", -1, 1, 48, 2, 243.912273),
    Sketcher.Constraint("DistanceX", -1, 1, 60, 2, 296.490273),
])
pocket1 = body.newObject("PartDesign::Pocket", "Pocket")
pocket1.Profile = sketch2
pocket1.Length = Q("0.1 in")

# Sketch on XY plane
sketch3 = body.newObject("Sketcher::SketchObject", "Sketch002")
sketch3.AttachmentSupport = (doc.getObject("XY_Plane"), [""])
sketch3.MapMode = "FlatFace"
sketch3.AttachmentOffset = App.Placement(App.Vector(0, 0, -0.1 * 25.4), App.Rotation())
sketch3.addGeometry([
    Part.LineSegment(App.Vector(342.2, 119.2, 0), App.Vector(342.2, 27.2, 0)),  # 0
    Part.LineSegment(App.Vector(342.2, 27.2, 0), App.Vector(339.7, 27.2, 0)),  # 1
    Part.LineSegment(App.Vector(339.7, 27.2, 0), App.Vector(339.7, 119.2, 0)),  # 2
    Part.LineSegment(App.Vector(339.7, 119.2, 0), App.Vector(342.2, 119.2, 0)),  # 3
    Part.LineSegment(App.Vector(179.7, 119.2, 0), App.Vector(179.7, 27.2, 0)),  # 4
    Part.LineSegment(App.Vector(179.7, 27.2, 0), App.Vector(177.1, 27.2, 0)),  # 5
    Part.LineSegment(App.Vector(177.1, 27.2, 0), App.Vector(177.1, 119.2, 0)),  # 6
    Part.LineSegment(App.Vector(177.1, 119.2, 0), App.Vector(179.7, 119.2, 0)),  # 7
], False)
sketch3.addConstraint([
    Sketcher.Constraint("Coincident", 0, 2, 1, 1),
    Sketcher.Constraint("Coincident", 1, 2, 2, 1),
    Sketcher.Constraint("Coincident", 2, 2, 3, 1),
    Sketcher.Constraint("Coincident", 3, 2, 0, 1),
    Sketcher.Constraint("Coincident", 4, 2, 5, 1),
    Sketcher.Constraint("Coincident", 5, 2, 6, 1),
    Sketcher.Constraint("Coincident", 6, 2, 7, 1),
    Sketcher.Constraint("Coincident", 7, 2, 4, 1),
    Sketcher.Constraint("Vertical", 0),
    Sketcher.Constraint("Horizontal", 1),
    Sketcher.Constraint("Vertical", 2),
    Sketcher.Constraint("Horizontal", 3),
    Sketcher.Constraint("Vertical", 4),
    Sketcher.Constraint("Horizontal", 5),
    Sketcher.Constraint("Vertical", 6),
    Sketcher.Constraint("Horizontal", 7),
    Sketcher.Constraint("Horizontal", 1, 2, 4, 2),
    Sketcher.Constraint("Horizontal", 3, 2, 6, 2),
    Sketcher.Constraint("Equal", 3, 5),
    Sketcher.Constraint("DistanceX", 1, 2, 1, 1, Q("0.1 in")),
    Sketcher.Constraint("DistanceX", 4, 2, 1, 2, Q("6.3 in")),
    Sketcher.Constraint("DistanceY", 0, 2, 0, 1, Q("3.625 in")),
    Sketcher.Constraint("DistanceX", -1, 1, 0, 2, 342.210273),
    Sketcher.Constraint("DistanceY", -1, 1, 0, 2, 27.172154),
])
pad2 = body.newObject("PartDesign::Pad", "Pad001")
pad2.Profile = sketch3
pad2.Length = Q("8 in")
pad2.Reversed = True

# Sketch on YZ plane
sketch4 = body.newObject("Sketcher::SketchObject", "Sketch003")
sketch4.AttachmentSupport = (doc.getObject("YZ_Plane"), [""])
sketch4.MapMode = "FlatFace"
sketch4.AttachmentOffset = App.Placement(App.Vector(0, 0, 339.670273), App.Rotation())
sketch4.addGeometry([
    Part.LineSegment(App.Vector(29.7, -205.7, 0), App.Vector(27.2, -205.7, 0)),
    Part.LineSegment(App.Vector(27.2, -205.7, 0), App.Vector(27.2, -167.6, 0)),
    Part.LineSegment(App.Vector(27.2, -167.6, 0), App.Vector(29.7, -167.6, 0)),
    Part.LineSegment(App.Vector(29.7, -167.6, 0), App.Vector(29.7, -205.7, 0)),
], False)
sketch4.addConstraint([
    Sketcher.Constraint("Coincident", 0, 2, 1, 1),
    Sketcher.Constraint("Coincident", 1, 2, 2, 1),
    Sketcher.Constraint("Coincident", 2, 2, 3, 1),
    Sketcher.Constraint("Coincident", 3, 2, 0, 1),
    Sketcher.Constraint("Horizontal", 0),
    Sketcher.Constraint("Vertical", 1),
    Sketcher.Constraint("Horizontal", 2),
    Sketcher.Constraint("Vertical", 3),
    Sketcher.Constraint("DistanceX", 0, 2, 0, 1, Q("0.1 in")),
    Sketcher.Constraint("DistanceY", 1, 1, 1, 2, Q("1.5 in")),
    Sketcher.Constraint("DistanceY", 0, 2, -1, 1, Q("8.1 in")),
    Sketcher.Constraint("DistanceX", -1, 1, 0, 2, 27.172154),
])
pad3 = body.newObject("PartDesign::Pad", "Pad002")
pad3.Profile = sketch4
pad3.Length = Q("6.3 in")
pad3.Reversed = True

# Sketch on XZ plane
sketch5 = body.newObject("Sketcher::SketchObject", "Sketch004")
sketch5.AttachmentSupport = (doc.getObject("XZ_Plane"), [""])
sketch5.MapMode = "FlatFace"
sketch5.AttachmentOffset = App.Placement(App.Vector(0, 0, -27.172154), App.Rotation())
sketch5.addGeometry([
    Part.LineSegment(App.Vector(180, -75, 0), App.Vector(180, -125, 0)),
    Part.LineSegment(App.Vector(180, -125, 0), App.Vector(340, -125, 0)),
    Part.LineSegment(App.Vector(340, -125, 0), App.Vector(340, -75, 0)),
    Part.LineSegment(App.Vector(340, -75, 0), App.Vector(180, -75, 0)),
], False)
sketch5.addConstraint([
    Sketcher.Constraint("Coincident", 0, 2, 1, 1),
    Sketcher.Constraint("Coincident", 1, 2, 2, 1),
    Sketcher.Constraint("Coincident", 2, 2, 3, 1),
    Sketcher.Constraint("Coincident", 3, 2, 0, 1),
    Sketcher.Constraint("Vertical", 0),
    Sketcher.Constraint("Horizontal", 1),
    Sketcher.Constraint("Vertical", 2),
    Sketcher.Constraint("Horizontal", 3),
    Sketcher.Constraint("DistanceY", 0, 2, 0, 1, Q("2 in")),
    Sketcher.Constraint("DistanceX", 1, 1, 1, 2, Q("6.3 in")),
    Sketcher.Constraint("DistanceY", 0, 2, -1, 1, 125.437339),
    Sketcher.Constraint("DistanceX", -1, 1, 0, 2, 179.650273),
])
pad4 = body.newObject("PartDesign::Pad", "Pad003")
pad4.Profile = sketch5
pad4.Length = Q("0.1 in")
pad4.Reversed = True

# Sketch on YZ plane
sketch6 = body.newObject("Sketcher::SketchObject", "Sketch005")
sketch6.AttachmentSupport = (doc.getObject("YZ_Plane"), [""])
sketch6.MapMode = "FlatFace"
sketch6.AttachmentOffset = App.Placement(App.Vector(0, 0, 342.210273), App.Rotation())
sketch6.addGeometry([
    Part.LineSegment(App.Vector(119, -206, 0), App.Vector(119, -51, 0)),
    Part.LineSegment(App.Vector(119, -51, 0), App.Vector(53, -108, 0)),
    Part.LineSegment(App.Vector(53, -108, 0), App.Vector(53, -206, 0)),
    Part.LineSegment(App.Vector(53, -206, 0), App.Vector(119, -206, 0)),
], False)
sketch6.addConstraint([
    Sketcher.Constraint("Coincident", 0, 2, 1, 1),
    Sketcher.Constraint("Coincident", 1, 2, 2, 1),
    Sketcher.Constraint("Coincident", 2, 2, 3, 1),
    Sketcher.Constraint("Coincident", 3, 2, 0, 1),
    Sketcher.Constraint("Vertical", 0),
    Sketcher.Constraint("Vertical", 2),
    Sketcher.Constraint("Horizontal", 3),
    Sketcher.Constraint("DistanceY", 2, 2, -1, 1, Q("8.1 in")),
    Sketcher.Constraint("DistanceX", 3, 1, 3, 2, Q("2.625 in")),
    Sketcher.Constraint("DistanceY", 2, 2, 2, 1, 97.958851),
    Sketcher.Constraint("DistanceY", 0, 1, 0, 2, 155.047007),
    Sketcher.Constraint("DistanceX", -1, 1, 0, 2, 119.247154),
])
pocket2 = body.newObject("PartDesign::Pocket", "Pocket001")
pocket2.Profile = sketch6
pocket2.Type = "ThroughAll"
pocket2.Midplane = True

doc.recompute()
